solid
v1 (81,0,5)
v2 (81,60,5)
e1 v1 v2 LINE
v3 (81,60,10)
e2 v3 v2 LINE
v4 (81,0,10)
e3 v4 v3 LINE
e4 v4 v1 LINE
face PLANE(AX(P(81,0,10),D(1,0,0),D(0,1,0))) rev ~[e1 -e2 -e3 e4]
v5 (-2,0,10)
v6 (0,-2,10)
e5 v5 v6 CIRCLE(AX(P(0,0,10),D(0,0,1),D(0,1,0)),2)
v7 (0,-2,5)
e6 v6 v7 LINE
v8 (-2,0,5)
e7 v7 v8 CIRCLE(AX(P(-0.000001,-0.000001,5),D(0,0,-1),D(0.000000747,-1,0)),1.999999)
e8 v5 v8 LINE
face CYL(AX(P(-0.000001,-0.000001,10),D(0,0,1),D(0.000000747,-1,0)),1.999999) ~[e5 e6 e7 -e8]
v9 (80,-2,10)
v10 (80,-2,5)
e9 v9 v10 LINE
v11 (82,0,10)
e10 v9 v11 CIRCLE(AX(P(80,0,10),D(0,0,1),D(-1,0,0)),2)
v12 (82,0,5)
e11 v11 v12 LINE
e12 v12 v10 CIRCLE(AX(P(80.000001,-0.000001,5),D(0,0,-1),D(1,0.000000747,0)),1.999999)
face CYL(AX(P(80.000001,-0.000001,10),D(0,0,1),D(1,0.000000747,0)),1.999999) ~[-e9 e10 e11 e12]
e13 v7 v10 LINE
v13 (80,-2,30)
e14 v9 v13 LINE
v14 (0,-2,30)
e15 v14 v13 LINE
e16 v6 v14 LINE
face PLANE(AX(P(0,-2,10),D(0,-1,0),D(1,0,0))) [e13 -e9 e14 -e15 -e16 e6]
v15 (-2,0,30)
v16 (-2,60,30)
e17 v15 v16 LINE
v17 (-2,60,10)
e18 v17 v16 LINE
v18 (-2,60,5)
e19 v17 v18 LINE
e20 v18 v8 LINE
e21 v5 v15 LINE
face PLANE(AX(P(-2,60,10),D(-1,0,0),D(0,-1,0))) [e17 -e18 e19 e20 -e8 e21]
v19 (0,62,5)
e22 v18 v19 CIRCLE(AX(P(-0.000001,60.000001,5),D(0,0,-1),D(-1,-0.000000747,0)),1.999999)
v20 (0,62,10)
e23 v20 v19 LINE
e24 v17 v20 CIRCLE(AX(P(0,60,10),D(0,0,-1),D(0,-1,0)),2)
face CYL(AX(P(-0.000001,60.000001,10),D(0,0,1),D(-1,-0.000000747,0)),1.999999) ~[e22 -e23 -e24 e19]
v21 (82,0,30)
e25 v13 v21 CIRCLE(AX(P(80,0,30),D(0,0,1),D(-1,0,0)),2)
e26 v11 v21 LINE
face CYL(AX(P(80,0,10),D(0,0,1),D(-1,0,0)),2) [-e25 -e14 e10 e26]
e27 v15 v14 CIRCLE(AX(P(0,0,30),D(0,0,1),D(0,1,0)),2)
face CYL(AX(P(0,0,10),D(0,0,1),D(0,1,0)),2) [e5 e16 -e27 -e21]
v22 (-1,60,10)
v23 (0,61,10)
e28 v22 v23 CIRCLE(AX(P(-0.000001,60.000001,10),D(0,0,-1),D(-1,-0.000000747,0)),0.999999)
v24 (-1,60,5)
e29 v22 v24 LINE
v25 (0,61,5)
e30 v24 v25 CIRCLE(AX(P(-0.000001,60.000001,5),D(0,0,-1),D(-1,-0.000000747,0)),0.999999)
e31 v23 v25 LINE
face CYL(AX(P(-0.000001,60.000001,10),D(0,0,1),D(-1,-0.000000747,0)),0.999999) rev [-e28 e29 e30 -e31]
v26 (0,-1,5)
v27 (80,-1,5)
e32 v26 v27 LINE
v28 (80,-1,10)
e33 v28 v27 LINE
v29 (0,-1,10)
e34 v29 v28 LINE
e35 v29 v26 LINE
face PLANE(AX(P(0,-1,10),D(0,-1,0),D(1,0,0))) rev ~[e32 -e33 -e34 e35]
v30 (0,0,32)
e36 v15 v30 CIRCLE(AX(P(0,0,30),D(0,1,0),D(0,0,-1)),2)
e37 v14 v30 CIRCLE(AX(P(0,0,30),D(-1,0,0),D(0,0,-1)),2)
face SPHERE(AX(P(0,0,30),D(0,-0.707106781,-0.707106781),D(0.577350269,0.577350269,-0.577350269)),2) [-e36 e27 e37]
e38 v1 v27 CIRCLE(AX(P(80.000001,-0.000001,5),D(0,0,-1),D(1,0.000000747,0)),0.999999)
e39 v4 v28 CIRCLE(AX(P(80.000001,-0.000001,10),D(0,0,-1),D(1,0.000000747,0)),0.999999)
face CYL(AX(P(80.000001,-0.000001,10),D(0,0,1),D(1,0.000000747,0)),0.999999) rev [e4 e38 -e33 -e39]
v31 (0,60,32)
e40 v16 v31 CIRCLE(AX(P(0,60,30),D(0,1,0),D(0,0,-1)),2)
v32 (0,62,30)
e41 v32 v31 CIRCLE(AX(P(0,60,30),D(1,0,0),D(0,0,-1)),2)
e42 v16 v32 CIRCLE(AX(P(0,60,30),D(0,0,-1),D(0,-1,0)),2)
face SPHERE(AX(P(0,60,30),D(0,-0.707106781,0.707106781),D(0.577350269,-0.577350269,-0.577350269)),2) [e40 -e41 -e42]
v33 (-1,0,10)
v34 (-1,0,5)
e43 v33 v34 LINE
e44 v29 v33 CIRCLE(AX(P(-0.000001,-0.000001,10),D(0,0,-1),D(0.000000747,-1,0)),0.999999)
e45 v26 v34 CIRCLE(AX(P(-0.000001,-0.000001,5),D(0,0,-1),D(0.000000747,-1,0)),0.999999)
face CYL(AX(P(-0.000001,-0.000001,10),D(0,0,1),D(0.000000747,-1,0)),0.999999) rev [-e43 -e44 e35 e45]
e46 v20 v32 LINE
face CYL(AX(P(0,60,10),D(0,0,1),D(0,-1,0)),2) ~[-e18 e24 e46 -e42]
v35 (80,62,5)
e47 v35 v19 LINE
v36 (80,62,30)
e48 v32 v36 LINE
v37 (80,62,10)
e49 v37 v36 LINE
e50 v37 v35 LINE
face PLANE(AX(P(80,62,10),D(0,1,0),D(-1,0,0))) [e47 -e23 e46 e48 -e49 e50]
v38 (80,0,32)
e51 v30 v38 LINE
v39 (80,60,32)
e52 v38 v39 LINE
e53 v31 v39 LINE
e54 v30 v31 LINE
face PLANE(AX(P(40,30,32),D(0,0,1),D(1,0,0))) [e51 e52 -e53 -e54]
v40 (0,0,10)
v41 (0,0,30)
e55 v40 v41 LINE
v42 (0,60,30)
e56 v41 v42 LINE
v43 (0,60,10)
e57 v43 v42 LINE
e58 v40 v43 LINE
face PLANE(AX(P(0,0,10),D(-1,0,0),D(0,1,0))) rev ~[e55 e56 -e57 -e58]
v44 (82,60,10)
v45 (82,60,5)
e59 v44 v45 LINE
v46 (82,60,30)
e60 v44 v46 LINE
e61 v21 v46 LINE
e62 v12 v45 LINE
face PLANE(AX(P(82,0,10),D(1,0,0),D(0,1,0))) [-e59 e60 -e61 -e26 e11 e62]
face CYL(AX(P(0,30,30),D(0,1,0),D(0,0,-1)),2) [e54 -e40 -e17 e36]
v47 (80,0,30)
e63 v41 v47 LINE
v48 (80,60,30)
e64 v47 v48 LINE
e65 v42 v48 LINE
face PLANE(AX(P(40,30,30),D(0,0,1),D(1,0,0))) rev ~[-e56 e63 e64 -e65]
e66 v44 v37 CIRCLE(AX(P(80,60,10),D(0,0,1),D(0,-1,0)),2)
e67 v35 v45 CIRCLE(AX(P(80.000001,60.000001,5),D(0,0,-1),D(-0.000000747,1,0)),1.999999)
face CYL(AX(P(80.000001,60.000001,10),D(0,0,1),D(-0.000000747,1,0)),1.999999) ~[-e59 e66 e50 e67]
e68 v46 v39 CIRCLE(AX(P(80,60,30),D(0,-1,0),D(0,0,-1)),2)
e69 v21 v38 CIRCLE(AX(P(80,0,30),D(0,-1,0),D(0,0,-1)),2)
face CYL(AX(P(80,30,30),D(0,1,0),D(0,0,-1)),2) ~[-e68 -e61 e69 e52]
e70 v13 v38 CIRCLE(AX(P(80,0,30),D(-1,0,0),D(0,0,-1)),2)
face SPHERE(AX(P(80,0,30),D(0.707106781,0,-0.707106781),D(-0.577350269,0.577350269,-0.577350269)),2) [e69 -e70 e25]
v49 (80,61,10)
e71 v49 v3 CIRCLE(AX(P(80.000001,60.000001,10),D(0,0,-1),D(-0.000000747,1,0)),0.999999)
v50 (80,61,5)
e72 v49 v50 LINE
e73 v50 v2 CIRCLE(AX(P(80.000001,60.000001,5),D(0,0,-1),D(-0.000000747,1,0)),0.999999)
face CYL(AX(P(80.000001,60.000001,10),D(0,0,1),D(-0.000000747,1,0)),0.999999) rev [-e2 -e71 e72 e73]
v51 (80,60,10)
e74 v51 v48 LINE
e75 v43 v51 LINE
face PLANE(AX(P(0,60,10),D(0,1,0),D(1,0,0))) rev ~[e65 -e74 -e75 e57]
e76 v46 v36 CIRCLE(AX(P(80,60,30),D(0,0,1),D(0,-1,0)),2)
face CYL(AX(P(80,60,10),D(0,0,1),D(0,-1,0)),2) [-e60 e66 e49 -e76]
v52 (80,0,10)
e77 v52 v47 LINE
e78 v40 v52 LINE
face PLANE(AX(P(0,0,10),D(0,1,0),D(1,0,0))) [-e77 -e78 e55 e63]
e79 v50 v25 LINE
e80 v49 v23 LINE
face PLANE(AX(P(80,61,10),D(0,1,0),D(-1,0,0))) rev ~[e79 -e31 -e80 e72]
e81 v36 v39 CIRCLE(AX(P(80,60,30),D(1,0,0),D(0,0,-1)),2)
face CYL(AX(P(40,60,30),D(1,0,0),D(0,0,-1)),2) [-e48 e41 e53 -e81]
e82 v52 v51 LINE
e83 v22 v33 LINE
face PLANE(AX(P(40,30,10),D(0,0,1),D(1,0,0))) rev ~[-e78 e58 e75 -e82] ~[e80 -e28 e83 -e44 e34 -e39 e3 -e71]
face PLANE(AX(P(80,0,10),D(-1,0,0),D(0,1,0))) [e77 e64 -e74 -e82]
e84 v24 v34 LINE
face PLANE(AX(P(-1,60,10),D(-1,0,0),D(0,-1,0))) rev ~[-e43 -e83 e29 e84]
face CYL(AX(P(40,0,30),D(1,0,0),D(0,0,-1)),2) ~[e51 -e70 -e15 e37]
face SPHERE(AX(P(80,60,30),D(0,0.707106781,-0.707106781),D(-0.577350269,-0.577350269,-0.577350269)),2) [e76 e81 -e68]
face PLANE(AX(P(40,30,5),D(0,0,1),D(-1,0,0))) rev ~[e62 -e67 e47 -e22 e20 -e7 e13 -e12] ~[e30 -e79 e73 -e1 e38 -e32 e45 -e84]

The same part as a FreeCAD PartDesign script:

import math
import FreeCAD as App
import Part
import Sketcher
from FreeCAD import Vector


def faces_at(feature, points):
    """Names of the faces that lie closest to the given points."""
    faces = feature.Shape.Faces
    near = lambda p: min(range(len(faces)), key=lambda i: faces[i].distToShape(Part.Vertex(*p))[0])
    return sorted({f"Face{near(p) + 1}" for p in points})

doc = App.newDocument("Part")
body = doc.addObject("PartDesign::Body", "Body")

sketch1 = body.newObject("Sketcher::SketchObject", "Sketch")
sketch1.AttachmentSupport = (doc.getObject("XY_Plane"), [""])
sketch1.MapMode = "FlatFace"
sketch1.AttachmentOffset = App.Placement(Vector(0, 0, 10), App.Rotation())
sketch1.addGeometry([
    Part.LineSegment(Vector(0, 60, 0), Vector(0, 0, 0)),
    Part.LineSegment(Vector(0, 0, 0), Vector(80, 0, 0)),
    Part.LineSegment(Vector(80, 0, 0), Vector(80, 60, 0)),
    Part.LineSegment(Vector(80, 60, 0), Vector(0, 60, 0)),
], False)
sketch1.addConstraint([
    Sketcher.Constraint("Coincident", 0, 2, 1, 1),
    Sketcher.Constraint("Coincident", 1, 2, 2, 1),
    Sketcher.Constraint("Coincident", 2, 2, 3, 1),
    Sketcher.Constraint("Coincident", 3, 2, 0, 1),
    Sketcher.Constraint("Vertical", 0),
    Sketcher.Constraint("Horizontal", 1),
    Sketcher.Constraint("Vertical", 2),
    Sketcher.Constraint("Horizontal", 3),
    Sketcher.Constraint("Coincident", 0, 2, -1, 1),
    Sketcher.Constraint("DistanceX", 1, 1, 1, 2, 80.0),
    Sketcher.Constraint("DistanceY", 0, 2, 0, 1, 60.0),
])
pad1 = body.newObject("PartDesign::Pad", "Pad")
pad1.Profile = sketch1
pad1.Length = 20
doc.recompute()

thickness = body.newObject("PartDesign::Thickness", "Thickness")
thickness.Base = (pad1, faces_at(pad1, [(40, 30, 10)]))
thickness.Value = 2
thickness.Reversed = False
thickness.Join = "Arc"

sketch2 = body.newObject("Sketcher::SketchObject", "Sketch001")
sketch2.AttachmentSupport = (doc.getObject("XY_Plane"), [""])
sketch2.MapMode = "FlatFace"
sketch2.AttachmentOffset = App.Placement(Vector(0, 0, 10), App.Rotation())
sketch2.addGeometry([
    Part.LineSegment(Vector(80, -2, 0), Vector(0, -2, 0)),
    Part.ArcOfCircle(Part.Circle(Vector(0, 0, 0), Vector(0, 0, 1), 2), math.radians(180), math.radians(270)),
    Part.LineSegment(Vector(-2, 0, 0), Vector(-2, 60, 0)),
    Part.ArcOfCircle(Part.Circle(Vector(0, 60, 0), Vector(0, 0, 1), 2), math.radians(90), math.radians(180)),
    Part.LineSegment(Vector(0, 62, 0), Vector(80, 62, 0)),
    Part.ArcOfCircle(Part.Circle(Vector(80, 60, 0), Vector(0, 0, 1), 2), math.radians(0), math.radians(90)),
    Part.LineSegment(Vector(82, 60, 0), Vector(82, 0, 0)),
    Part.ArcOfCircle(Part.Circle(Vector(80, 0, 0), Vector(0, 0, 1), 2), math.radians(-90), math.radians(0)),
    Part.LineSegment(Vector(0, -1, 0), Vector(80, -1, 0)),
    Part.ArcOfCircle(Part.Circle(Vector(80, 0, 0), Vector(0, 0, 1), 1), math.radians(-90), math.radians(0)),
    Part.LineSegment(Vector(81, 0, 0), Vector(81, 60, 0)),
    Part.ArcOfCircle(Part.Circle(Vector(80, 60, 0), Vector(0, 0, 1), 1), math.radians(0), math.radians(90)),
    Part.LineSegment(Vector(80, 61, 0), Vector(0, 61, 0)),
    Part.ArcOfCircle(Part.Circle(Vector(0, 60, 0), Vector(0, 0, 1), 1), math.radians(90), math.radians(180)),
    Part.LineSegment(Vector(-1, 60, 0), Vector(-1, 0, 0)),
    Part.ArcOfCircle(Part.Circle(Vector(0, 0, 0), Vector(0, 0, 1), 1), math.radians(180), math.radians(270)),
], False)
sketch2.addConstraint([
    Sketcher.Constraint("Tangent", 0, 2, 1, 2),
    Sketcher.Constraint("Tangent", 1, 1, 2, 1),
    Sketcher.Constraint("Tangent", 2, 2, 3, 2),
    Sketcher.Constraint("Tangent", 3, 1, 4, 1),
    Sketcher.Constraint("Tangent", 4, 2, 5, 2),
    Sketcher.Constraint("Tangent", 5, 1, 6, 1),
    Sketcher.Constraint("Tangent", 6, 2, 7, 2),
    Sketcher.Constraint("Tangent", 7, 1, 0, 1),
    Sketcher.Constraint("Tangent", 8, 2, 9, 1),
    Sketcher.Constraint("Tangent", 9, 2, 10, 1),
    Sketcher.Constraint("Tangent", 10, 2, 11, 1),
    Sketcher.Constraint("Tangent", 11, 2, 12, 1),
    Sketcher.Constraint("Tangent", 12, 2, 13, 1),
    Sketcher.Constraint("Tangent", 13, 2, 14, 1),
    Sketcher.Constraint("Tangent", 14, 2, 15, 1),
    Sketcher.Constraint("Tangent", 15, 2, 8, 1),
    Sketcher.Constraint("Horizontal", 0),
    Sketcher.Constraint("Vertical", 2),
    Sketcher.Constraint("Horizontal", 4),
    Sketcher.Constraint("Vertical", 6),
    Sketcher.Constraint("Horizontal", 8),
    Sketcher.Constraint("Vertical", 10),
    Sketcher.Constraint("Horizontal", 12),
    Sketcher.Constraint("Vertical", 14),
    Sketcher.Constraint("Coincident", 1, 3, -1, 1),
    Sketcher.Constraint("Coincident", 15, 3, -1, 1),
    Sketcher.Constraint("Coincident", 9, 3, 7, 3),
    Sketcher.Constraint("Coincident", 11, 3, 5, 3),
    Sketcher.Constraint("Equal", 1, 3),
    Sketcher.Constraint("Equal", 3, 5),
    Sketcher.Constraint("Equal", 5, 7),
    Sketcher.Constraint("Equal", 11, 13),
    Sketcher.Constraint("Radius", 1, 1.999999),
    Sketcher.Constraint("Radius", 9, 0.999999),
    Sketcher.Constraint("DistanceX", 0, 2, 0, 1, 80.0),
    Sketcher.Constraint("DistanceY", 2, 1, 2, 2, 60.0),
])
pad2 = body.newObject("PartDesign::Pad", "Pad001")
pad2.Profile = sketch2
pad2.Length = 5
pad2.Reversed = True

doc.recompute()
